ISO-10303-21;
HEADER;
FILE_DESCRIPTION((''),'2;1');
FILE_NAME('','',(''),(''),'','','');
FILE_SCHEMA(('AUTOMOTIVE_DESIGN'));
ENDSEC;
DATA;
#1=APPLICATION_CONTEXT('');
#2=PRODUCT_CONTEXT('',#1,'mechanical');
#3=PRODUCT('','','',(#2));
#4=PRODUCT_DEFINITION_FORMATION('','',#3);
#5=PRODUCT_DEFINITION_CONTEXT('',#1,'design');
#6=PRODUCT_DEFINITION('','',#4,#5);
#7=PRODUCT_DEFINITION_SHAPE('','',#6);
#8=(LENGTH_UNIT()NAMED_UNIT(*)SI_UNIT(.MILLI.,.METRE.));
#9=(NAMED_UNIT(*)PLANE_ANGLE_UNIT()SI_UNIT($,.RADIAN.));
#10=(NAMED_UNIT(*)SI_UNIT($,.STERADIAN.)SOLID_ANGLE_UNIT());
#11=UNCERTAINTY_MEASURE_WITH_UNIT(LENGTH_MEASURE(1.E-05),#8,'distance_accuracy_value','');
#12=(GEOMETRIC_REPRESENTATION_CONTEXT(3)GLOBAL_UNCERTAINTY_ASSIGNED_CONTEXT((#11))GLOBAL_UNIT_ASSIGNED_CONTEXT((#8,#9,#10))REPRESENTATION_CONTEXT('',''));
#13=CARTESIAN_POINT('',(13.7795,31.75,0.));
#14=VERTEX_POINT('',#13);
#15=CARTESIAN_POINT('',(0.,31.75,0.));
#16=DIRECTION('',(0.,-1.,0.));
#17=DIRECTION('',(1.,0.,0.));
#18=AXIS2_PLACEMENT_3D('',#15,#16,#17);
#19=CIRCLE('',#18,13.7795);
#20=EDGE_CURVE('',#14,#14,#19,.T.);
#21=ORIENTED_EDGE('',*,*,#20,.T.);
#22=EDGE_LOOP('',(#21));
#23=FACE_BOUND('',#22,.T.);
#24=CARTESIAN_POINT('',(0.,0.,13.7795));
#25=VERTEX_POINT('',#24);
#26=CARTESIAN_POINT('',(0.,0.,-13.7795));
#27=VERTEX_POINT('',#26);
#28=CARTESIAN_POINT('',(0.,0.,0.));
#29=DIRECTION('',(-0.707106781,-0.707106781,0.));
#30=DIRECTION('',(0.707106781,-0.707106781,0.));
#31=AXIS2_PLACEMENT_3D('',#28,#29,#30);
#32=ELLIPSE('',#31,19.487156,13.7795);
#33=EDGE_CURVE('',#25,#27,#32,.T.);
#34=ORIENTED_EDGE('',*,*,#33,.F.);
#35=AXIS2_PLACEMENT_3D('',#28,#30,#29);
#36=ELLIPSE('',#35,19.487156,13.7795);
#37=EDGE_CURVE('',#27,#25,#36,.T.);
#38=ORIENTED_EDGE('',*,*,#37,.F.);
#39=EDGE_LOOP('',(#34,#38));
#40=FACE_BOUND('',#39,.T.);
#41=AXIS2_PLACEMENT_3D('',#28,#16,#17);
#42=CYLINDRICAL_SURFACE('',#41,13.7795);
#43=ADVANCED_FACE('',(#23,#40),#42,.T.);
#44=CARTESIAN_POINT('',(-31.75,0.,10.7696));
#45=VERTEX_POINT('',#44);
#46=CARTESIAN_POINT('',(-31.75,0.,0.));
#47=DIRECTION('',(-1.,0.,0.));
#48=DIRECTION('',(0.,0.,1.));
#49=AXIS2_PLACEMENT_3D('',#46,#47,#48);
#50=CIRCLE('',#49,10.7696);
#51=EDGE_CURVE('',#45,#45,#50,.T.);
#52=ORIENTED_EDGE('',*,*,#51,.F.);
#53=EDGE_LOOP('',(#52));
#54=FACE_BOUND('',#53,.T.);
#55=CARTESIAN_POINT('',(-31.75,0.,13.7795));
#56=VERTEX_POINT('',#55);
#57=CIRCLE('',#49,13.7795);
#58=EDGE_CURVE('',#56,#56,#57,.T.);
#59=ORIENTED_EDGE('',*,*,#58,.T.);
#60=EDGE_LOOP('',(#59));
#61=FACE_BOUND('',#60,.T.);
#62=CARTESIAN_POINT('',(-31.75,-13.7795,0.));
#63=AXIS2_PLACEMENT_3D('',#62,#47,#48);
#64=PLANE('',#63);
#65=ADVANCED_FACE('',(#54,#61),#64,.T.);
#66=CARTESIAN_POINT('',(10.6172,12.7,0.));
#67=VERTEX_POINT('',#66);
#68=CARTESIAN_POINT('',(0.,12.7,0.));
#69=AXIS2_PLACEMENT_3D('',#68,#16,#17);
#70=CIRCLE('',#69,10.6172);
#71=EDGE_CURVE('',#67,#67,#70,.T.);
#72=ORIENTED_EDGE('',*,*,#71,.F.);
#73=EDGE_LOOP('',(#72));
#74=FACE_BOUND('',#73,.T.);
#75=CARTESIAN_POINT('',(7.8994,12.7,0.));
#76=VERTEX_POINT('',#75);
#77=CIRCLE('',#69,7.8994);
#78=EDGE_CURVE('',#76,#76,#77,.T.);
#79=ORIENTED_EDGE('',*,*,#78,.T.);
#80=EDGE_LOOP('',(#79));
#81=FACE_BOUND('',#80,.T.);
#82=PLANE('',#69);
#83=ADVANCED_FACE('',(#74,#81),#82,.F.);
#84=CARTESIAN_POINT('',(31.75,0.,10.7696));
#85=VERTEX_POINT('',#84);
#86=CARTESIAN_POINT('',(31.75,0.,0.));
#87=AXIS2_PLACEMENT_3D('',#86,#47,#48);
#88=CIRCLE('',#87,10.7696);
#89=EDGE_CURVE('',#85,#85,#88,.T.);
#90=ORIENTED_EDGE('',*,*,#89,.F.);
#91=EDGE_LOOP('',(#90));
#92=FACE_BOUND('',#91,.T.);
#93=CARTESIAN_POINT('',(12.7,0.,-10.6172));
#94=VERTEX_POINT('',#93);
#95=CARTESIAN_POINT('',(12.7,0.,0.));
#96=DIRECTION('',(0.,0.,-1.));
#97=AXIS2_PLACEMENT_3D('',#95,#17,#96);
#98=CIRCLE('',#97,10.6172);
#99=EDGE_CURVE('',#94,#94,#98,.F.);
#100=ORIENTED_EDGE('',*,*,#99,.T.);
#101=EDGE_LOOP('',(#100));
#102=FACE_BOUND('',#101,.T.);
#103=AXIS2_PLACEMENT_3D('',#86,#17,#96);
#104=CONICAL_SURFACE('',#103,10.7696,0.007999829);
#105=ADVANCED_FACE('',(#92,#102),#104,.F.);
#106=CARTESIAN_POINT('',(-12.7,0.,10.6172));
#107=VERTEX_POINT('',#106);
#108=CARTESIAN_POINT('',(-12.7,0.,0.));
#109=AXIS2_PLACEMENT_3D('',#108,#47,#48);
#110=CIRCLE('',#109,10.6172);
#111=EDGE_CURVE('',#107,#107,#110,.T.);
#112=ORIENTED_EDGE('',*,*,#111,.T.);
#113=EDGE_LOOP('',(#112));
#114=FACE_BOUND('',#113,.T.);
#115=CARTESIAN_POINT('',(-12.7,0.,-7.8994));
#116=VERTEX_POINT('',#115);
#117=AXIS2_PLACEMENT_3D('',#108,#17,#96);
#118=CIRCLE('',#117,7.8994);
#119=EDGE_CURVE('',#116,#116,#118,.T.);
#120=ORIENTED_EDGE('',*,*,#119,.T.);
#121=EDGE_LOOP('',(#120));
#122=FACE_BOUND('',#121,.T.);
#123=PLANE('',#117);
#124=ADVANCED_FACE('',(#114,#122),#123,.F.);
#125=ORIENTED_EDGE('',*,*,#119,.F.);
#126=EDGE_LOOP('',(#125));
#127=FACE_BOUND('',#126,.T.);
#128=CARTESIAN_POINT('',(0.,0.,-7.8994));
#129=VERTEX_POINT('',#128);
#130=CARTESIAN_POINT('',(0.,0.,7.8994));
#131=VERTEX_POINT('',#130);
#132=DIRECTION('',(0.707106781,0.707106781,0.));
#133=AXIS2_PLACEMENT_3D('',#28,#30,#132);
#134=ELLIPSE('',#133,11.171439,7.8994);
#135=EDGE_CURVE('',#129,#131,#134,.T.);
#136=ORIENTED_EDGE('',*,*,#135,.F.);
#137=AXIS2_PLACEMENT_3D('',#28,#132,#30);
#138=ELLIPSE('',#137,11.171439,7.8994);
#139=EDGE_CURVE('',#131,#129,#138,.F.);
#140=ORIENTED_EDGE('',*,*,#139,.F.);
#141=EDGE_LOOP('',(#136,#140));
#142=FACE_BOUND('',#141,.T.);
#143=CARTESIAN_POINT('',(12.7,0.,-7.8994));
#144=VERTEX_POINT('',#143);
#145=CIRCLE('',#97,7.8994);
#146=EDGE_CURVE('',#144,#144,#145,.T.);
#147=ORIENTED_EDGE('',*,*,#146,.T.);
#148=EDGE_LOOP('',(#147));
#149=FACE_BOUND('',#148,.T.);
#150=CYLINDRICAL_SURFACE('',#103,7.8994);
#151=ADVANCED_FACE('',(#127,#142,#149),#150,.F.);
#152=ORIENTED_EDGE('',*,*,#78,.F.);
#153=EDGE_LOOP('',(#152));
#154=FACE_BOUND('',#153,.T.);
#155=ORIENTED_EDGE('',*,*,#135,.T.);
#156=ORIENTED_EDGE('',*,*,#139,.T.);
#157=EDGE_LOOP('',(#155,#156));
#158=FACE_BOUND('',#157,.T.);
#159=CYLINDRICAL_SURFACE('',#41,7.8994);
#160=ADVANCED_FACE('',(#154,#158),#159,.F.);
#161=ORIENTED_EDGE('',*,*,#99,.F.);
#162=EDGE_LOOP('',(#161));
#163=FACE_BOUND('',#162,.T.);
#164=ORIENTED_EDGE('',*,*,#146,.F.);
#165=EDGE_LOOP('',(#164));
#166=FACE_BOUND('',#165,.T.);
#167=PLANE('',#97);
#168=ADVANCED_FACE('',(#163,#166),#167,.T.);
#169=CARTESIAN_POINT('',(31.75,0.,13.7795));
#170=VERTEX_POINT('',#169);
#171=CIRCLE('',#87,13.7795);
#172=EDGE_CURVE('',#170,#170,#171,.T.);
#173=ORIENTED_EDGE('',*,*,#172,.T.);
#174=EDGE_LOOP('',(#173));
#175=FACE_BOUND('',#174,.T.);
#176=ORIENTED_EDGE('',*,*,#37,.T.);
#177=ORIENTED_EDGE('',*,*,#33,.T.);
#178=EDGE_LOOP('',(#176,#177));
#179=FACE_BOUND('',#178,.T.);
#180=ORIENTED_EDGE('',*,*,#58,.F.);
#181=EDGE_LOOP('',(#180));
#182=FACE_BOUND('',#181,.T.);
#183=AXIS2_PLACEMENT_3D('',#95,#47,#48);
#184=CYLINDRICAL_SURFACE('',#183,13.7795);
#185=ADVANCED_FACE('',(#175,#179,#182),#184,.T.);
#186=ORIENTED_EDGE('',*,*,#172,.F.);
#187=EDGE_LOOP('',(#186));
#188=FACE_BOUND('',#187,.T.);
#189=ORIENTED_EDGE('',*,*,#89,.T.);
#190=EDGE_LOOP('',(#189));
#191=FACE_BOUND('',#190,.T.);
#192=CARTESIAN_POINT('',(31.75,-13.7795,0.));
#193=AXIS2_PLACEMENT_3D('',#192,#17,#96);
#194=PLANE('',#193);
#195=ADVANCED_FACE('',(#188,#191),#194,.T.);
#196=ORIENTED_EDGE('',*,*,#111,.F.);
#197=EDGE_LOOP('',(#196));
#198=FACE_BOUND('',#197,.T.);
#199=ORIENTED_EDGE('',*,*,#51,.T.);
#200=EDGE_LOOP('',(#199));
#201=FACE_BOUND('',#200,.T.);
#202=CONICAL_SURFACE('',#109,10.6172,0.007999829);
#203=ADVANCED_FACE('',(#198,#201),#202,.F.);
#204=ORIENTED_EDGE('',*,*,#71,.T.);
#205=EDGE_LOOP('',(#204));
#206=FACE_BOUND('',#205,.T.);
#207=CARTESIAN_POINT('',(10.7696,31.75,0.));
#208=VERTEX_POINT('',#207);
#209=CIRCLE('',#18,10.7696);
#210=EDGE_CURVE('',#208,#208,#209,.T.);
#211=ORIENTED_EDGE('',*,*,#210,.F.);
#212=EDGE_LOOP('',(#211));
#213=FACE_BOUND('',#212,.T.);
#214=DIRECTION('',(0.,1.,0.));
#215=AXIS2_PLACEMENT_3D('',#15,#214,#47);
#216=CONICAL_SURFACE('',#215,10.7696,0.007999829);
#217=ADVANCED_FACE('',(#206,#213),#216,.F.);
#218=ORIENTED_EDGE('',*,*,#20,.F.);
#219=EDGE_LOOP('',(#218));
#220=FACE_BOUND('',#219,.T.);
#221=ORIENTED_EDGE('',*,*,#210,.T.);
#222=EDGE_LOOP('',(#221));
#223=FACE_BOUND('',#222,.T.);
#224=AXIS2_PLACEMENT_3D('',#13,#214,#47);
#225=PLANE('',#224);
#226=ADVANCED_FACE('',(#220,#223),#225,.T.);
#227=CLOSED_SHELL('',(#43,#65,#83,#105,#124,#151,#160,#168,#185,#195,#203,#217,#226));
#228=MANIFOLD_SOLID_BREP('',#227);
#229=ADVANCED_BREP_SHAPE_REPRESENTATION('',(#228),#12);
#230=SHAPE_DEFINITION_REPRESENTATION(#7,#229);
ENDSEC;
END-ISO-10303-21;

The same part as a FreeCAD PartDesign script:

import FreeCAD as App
import Part
import Sketcher
Q = App.Units.Quantity

doc = App.newDocument("Part")
params = doc.addObject("Spreadsheet::Sheet", "Params")
for row, (alias, value) in enumerate([
    ("sketch1_width", "0.75 in"),
    ("revolution_angle", "360 deg"),
    ("sketch2_height", "0.75 in"),
    ("revolution2_angle", "360 deg"),
    ("sketch3_diameter", "1.085 in"),
    ("pad1_length", "1 in"),
    ("sketch4_diameter", "1.085 in"),
    ("pad2_length", "0.5 in"),
    ("sketch5_width", "1 in"),
    ("sketch5_width2", "2.5 in"),
    ("sketch5_height", "0.107 in"),
    ("sketch5_height2", "0.424 in"),
    ("groove_angle", "360 deg"),
    ("sketch6_height", "0.5 in"),
    ("sketch6_height2", "1.25 in"),
    ("sketch6_width", "0.424 in"),
    ("sketch6_width2", "0.311 in"),
    ("sketch6_width3", "0.107 in"),
    ("groove2_angle", "360 deg"),
], start=1):
    params.set(f"A{row}", alias)
    params.set(f"B{row}", "=" + value)
    params.setAlias(f"B{row}", alias)

body = doc.addObject("PartDesign::Body", "Body")
body.AllowCompound = True

sketch1 = doc.addObject("Sketcher::SketchObject", "Sketch")
body.addObject(sketch1)
sketch1.AttachmentSupport = (doc.XY_Plane, [""])
sketch1.MapMode = "FlatFace"
sketch1.addGeometry([
    Part.LineSegment(App.Vector(-31.8, -13.8, 0), App.Vector(-12.7, -13.8, 0)),
    Part.LineSegment(App.Vector(-12.7, -13.8, 0), App.Vector(-12.7, -10.6, 0)),
    Part.LineSegment(App.Vector(-12.7, -10.6, 0), App.Vector(-31.8, -10.8, 0)),
    Part.LineSegment(App.Vector(-31.8, -10.8, 0), App.Vector(-31.8, -13.8, 0)),
    Part.LineSegment(App.Vector(31.8, -10.8, 0), App.Vector(12.7, -10.6, 0)),
    Part.LineSegment(App.Vector(12.7, -10.6, 0), App.Vector(12.7, -13.8, 0)),
    Part.LineSegment(App.Vector(12.7, -13.8, 0), App.Vector(31.8, -13.8, 0)),
    Part.LineSegment(App.Vector(31.8, -13.8, 0), App.Vector(31.8, -10.8, 0)),
], False)
sketch1.addConstraint([
    Sketcher.Constraint("Coincident", 0, 2, 1, 1),
    Sketcher.Constraint("Coincident", 1, 2, 2, 1),
    Sketcher.Constraint("Coincident", 2, 2, 3, 1),
    Sketcher.Constraint("Coincident", 3, 2, 0, 1),
    Sketcher.Constraint("Coincident", 4, 2, 5, 1),
    Sketcher.Constraint("Coincident", 5, 2, 6, 1),
    Sketcher.Constraint("Coincident", 6, 2, 7, 1),
    Sketcher.Constraint("Coincident", 7, 2, 4, 1),
    Sketcher.Constraint("Horizontal", 0),
    Sketcher.Constraint("Vertical", 1),
    Sketcher.Constraint("Vertical", 3),
    Sketcher.Constraint("Vertical", 5),
    Sketcher.Constraint("Horizontal", 6),
    Sketcher.Constraint("Vertical", 7),
    Sketcher.Constraint("Symmetric", 1, 2, 4, 2, -2),
    Sketcher.Constraint("Symmetric", 3, 2, 6, 2, -2),
    Sketcher.Constraint("Horizontal", 2, 2, 7, 2),
    Sketcher.Constraint("DistanceX", 1, 2, 4, 2, Q("1 in")),
    Sketcher.Constraint("DistanceX", 0, 1, 0, 2, Q("0.75 in")),
    Sketcher.Constraint("DistanceY", 1, 1, 1, 2, Q("0.1245 in")),
    Sketcher.Constraint("DistanceY", 3, 2, 3, 1, Q("0.1185 in")),
    Sketcher.Constraint("DistanceY", 1, 2, -1, 1, Q("0.418 in")),
])
sketch1.setExpression("Constraints[18]", "Params.sketch1_width")
revolution = doc.addObject("PartDesign::Revolution", "Revolution")
body.addObject(revolution)
revolution.Profile = sketch1
revolution.ReferenceAxis = (sketch1, ["H_Axis"])
revolution.setExpression("Angle", "Params.revolution_angle")
body2 = doc.addObject("PartDesign::Body", "Body001")

sketch2 = doc.addObject("Sketcher::SketchObject", "Sketch001")
body2.addObject(sketch2)
sketch2.AttachmentSupport = (doc.getObject("XY_Plane001"), [""])
sketch2.MapMode = "FlatFace"
sketch2.addGeometry([
    Part.LineSegment(App.Vector(10.8, 31.8, 0), App.Vector(10.6, 12.7, 0)),
    Part.LineSegment(App.Vector(10.6, 12.7, 0), App.Vector(13.8, 12.7, 0)),
    Part.LineSegment(App.Vector(13.8, 12.7, 0), App.Vector(13.8, 31.8, 0)),
    Part.LineSegment(App.Vector(13.8, 31.8, 0), App.Vector(10.8, 31.8, 0)),
], False)
sketch2.addConstraint([
    Sketcher.Constraint("Coincident", 0, 2, 1, 1),
    Sketcher.Constraint("Coincident", 1, 2, 2, 1),
    Sketcher.Constraint("Coincident", 2, 2, 3, 1),
    Sketcher.Constraint("Coincident", 3, 2, 0, 1),
    Sketcher.Constraint("Horizontal", 1),
    Sketcher.Constraint("Vertical", 2),
    Sketcher.Constraint("Horizontal", 3),
    Sketcher.Constraint("DistanceY", 2, 1, 2, 2, Q("0.75 in")),
    Sketcher.Constraint("DistanceY", -1, 1, 0, 2, Q("0.5 in")),
    Sketcher.Constraint("DistanceX", 1, 1, 1, 2, Q("0.1245 in")),
    Sketcher.Constraint("DistanceX", 3, 2, 3, 1, Q("0.1185 in")),
    Sketcher.Constraint("DistanceX", -1, 1, 0, 2, Q("0.418 in")),
])
sketch2.setExpression("Constraints[7]", "Params.sketch2_height")
revolution2 = doc.addObject("PartDesign::Revolution", "Revolution001")
body2.addObject(revolution2)
revolution2.Profile = sketch2
revolution2.ReferenceAxis = (sketch2, ["V_Axis"])
revolution2.setExpression("Angle", "Params.revolution2_angle")
doc.recompute()

boolean = doc.addObject("PartDesign::Boolean", "Boolean")
body.addObject(boolean)
boolean.Type = "Fuse"
boolean.addObjects([body2])

sketch3 = doc.addObject("Sketcher::SketchObject", "Sketch002")
body.addObject(sketch3)
sketch3.AttachmentSupport = (doc.YZ_Plane, [""])
sketch3.MapMode = "FlatFace"
sketch3.AttachmentOffset = App.Placement(App.Vector(0, 0, -0.5 * 25.4), App.Rotation())
sketch3.addGeometry(Part.Circle(App.Vector(0, 0, 0), App.Vector(0, 0, 1), 14), False)
sketch3.addConstraint([
    Sketcher.Constraint("Coincident", 0, 3, -1, 1),
    Sketcher.Constraint("Diameter", 0, Q("1.085 in")),
])
sketch3.setExpression("Constraints[1]", "Params.sketch3_diameter")
pad1 = doc.addObject("PartDesign::Pad", "Pad")
body.addObject(pad1)
pad1.Profile = sketch3
pad1.setExpression("Length", "Params.pad1_length")

sketch4 = doc.addObject("Sketcher::SketchObject", "Sketch003")
body.addObject(sketch4)
sketch4.AttachmentSupport = (doc.XZ_Plane, [""])
sketch4.MapMode = "FlatFace"
sketch4.AttachmentOffset = App.Placement(App.Vector(0, 0, -0.5 * 25.4), App.Rotation())
sketch4.addGeometry(Part.Circle(App.Vector(0, 0, 0), App.Vector(0, 0, 1), 14), False)
sketch4.addConstraint([
    Sketcher.Constraint("Coincident", 0, 3, -1, 1),
    Sketcher.Constraint("Diameter", 0, Q("1.085 in")),
])
sketch4.setExpression("Constraints[1]", "Params.sketch4_diameter")
pad2 = doc.addObject("PartDesign::Pad", "Pad001")
body.addObject(pad2)
pad2.Profile = sketch4
pad2.setExpression("Length", "Params.pad2_length")

sketch5 = doc.addObject("Sketcher::SketchObject", "Sketch004")
body.addObject(sketch5)
sketch5.AttachmentSupport = (doc.XY_Plane, [""])
sketch5.MapMode = "FlatFace"
sketch5.addGeometry([
    Part.LineSegment(App.Vector(-31.8, -10.8, 0), App.Vector(-12.7, -10.6, 0)),
    Part.LineSegment(App.Vector(-12.7, -10.6, 0), App.Vector(-12.7, -7.9, 0)),
    Part.LineSegment(App.Vector(-12.7, -7.9, 0), App.Vector(12.7, -7.9, 0)),
    Part.LineSegment(App.Vector(12.7, -7.9, 0), App.Vector(12.7, -10.6, 0)),
    Part.LineSegment(App.Vector(12.7, -10.6, 0), App.Vector(31.8, -10.8, 0)),
    Part.LineSegment(App.Vector(31.8, -10.8, 0), App.Vector(31.8, 0, 0)),
    Part.LineSegment(App.Vector(31.8, 0, 0), App.Vector(-31.8, 0, 0)),
    Part.LineSegment(App.Vector(-31.8, 0, 0), App.Vector(-31.8, -10.8, 0)),
], False)
sketch5.addConstraint([
    Sketcher.Constraint("Coincident", 0, 2, 1, 1),
    Sketcher.Constraint("Coincident", 1, 2, 2, 1),
    Sketcher.Constraint("Coincident", 2, 2, 3, 1),
    Sketcher.Constraint("Coincident", 3, 2, 4, 1),
    Sketcher.Constraint("Coincident", 4, 2, 5, 1),
    Sketcher.Constraint("Coincident", 5, 2, 6, 1),
    Sketcher.Constraint("Coincident", 6, 2, 7, 1),
    Sketcher.Constraint("Coincident", 7, 2, 0, 1),
    Sketcher.Constraint("Vertical", 1),
    Sketcher.Constraint("Horizontal", 2),
    Sketcher.Constraint("Vertical", 3),
    Sketcher.Constraint("Vertical", 5),
    Sketcher.Constraint("Horizontal", 6),
    Sketcher.Constraint("Vertical", 7),
    Sketcher.Constraint("Symmetric", 5, 2, 6, 2, -1, 1),
    Sketcher.Constraint("Symmetric", 0, 2, 3, 2, -2),
    Sketcher.Constraint("Horizontal", 4, 2, 7, 2),
    Sketcher.Constraint("DistanceX", 2, 1, 2, 2, Q("1 in")),
    Sketcher.Constraint("DistanceX", 6, 2, 6, 1, Q("2.5 in")),
    Sketcher.Constraint("DistanceY", 1, 1, 1, 2, Q("0.107 in")),
    Sketcher.Constraint("DistanceY", 5, 1, 5, 2, Q("0.424 in")),
    Sketcher.Constraint("DistanceY", 0, 2, -1, 1, Q("0.418 in")),
])
sketch5.setExpression("Constraints[17]", "Params.sketch5_width")
sketch5.setExpression("Constraints[18]", "Params.sketch5_width2")
sketch5.setExpression("Constraints[19]", "Params.sketch5_height")
sketch5.setExpression("Constraints[20]", "Params.sketch5_height2")
groove = doc.addObject("PartDesign::Groove", "Groove")
body.addObject(groove)
groove.Profile = sketch5
groove.ReferenceAxis = (sketch5, ["H_Axis"])
groove.setExpression("Angle", "Params.groove_angle")

sketch6 = doc.addObject("Sketcher::SketchObject", "Sketch005")
body.addObject(sketch6)
sketch6.AttachmentSupport = (doc.XY_Plane, [""])
sketch6.MapMode = "FlatFace"
sketch6.addGeometry([
    Part.LineSegment(App.Vector(10.6, 12.7, 0), App.Vector(10.8, 31.8, 0)),
    Part.LineSegment(App.Vector(10.8, 31.8, 0), App.Vector(0, 31.8, 0)),
    Part.LineSegment(App.Vector(0, 31.8, 0), App.Vector(0, 0, 0)),
    Part.LineSegment(App.Vector(0, 0, 0), App.Vector(7.9, 0, 0)),
    Part.LineSegment(App.Vector(7.9, 0, 0), App.Vector(7.9, 12.7, 0)),
    Part.LineSegment(App.Vector(7.9, 12.7, 0), App.Vector(10.6, 12.7, 0)),
], False)
sketch6.addConstraint([
    Sketcher.Constraint("Coincident", 0, 2, 1, 1),
    Sketcher.Constraint("Coincident", 1, 2, 2, 1),
    Sketcher.Constraint("Coincident", 2, 2, 3, 1),
    Sketcher.Constraint("Coincident", 3, 2, 4, 1),
    Sketcher.Constraint("Coincident", 4, 2, 5, 1),
    Sketcher.Constraint("Coincident", 5, 2, 0, 1),
    Sketcher.Constraint("Horizontal", 1),
    Sketcher.Constraint("Vertical", 2),
    Sketcher.Constraint("Horizontal", 3),
    Sketcher.Constraint("Vertical", 4),
    Sketcher.Constraint("Horizontal", 5),
    Sketcher.Constraint("Coincident", 2, 2, -1, 1),
    Sketcher.Constraint("DistanceY", 4, 1, 4, 2, Q("0.5 in")),
    Sketcher.Constraint("DistanceY", 2, 2, 2, 1, Q("1.25 in")),
    Sketcher.Constraint("DistanceX", 1, 2, 1, 1, Q("0.424 in")),
    Sketcher.Constraint("DistanceX", 3, 1, 3, 2, Q("0.311 in")),
    Sketcher.Constraint("DistanceX", 5, 1, 5, 2, Q("0.107 in")),
])
sketch6.setExpression("Constraints[12]", "Params.sketch6_height")
sketch6.setExpression("Constraints[13]", "Params.sketch6_height2")
sketch6.setExpression("Constraints[14]", "Params.sketch6_width")
sketch6.setExpression("Constraints[15]", "Params.sketch6_width2")
sketch6.setExpression("Constraints[16]", "Params.sketch6_width3")
groove2 = doc.addObject("PartDesign::Groove", "Groove001")
body.addObject(groove2)
groove2.Profile = sketch6
groove2.ReferenceAxis = (sketch6, ["V_Axis"])
groove2.setExpression("Angle", "Params.groove2_angle")

doc.recompute()
